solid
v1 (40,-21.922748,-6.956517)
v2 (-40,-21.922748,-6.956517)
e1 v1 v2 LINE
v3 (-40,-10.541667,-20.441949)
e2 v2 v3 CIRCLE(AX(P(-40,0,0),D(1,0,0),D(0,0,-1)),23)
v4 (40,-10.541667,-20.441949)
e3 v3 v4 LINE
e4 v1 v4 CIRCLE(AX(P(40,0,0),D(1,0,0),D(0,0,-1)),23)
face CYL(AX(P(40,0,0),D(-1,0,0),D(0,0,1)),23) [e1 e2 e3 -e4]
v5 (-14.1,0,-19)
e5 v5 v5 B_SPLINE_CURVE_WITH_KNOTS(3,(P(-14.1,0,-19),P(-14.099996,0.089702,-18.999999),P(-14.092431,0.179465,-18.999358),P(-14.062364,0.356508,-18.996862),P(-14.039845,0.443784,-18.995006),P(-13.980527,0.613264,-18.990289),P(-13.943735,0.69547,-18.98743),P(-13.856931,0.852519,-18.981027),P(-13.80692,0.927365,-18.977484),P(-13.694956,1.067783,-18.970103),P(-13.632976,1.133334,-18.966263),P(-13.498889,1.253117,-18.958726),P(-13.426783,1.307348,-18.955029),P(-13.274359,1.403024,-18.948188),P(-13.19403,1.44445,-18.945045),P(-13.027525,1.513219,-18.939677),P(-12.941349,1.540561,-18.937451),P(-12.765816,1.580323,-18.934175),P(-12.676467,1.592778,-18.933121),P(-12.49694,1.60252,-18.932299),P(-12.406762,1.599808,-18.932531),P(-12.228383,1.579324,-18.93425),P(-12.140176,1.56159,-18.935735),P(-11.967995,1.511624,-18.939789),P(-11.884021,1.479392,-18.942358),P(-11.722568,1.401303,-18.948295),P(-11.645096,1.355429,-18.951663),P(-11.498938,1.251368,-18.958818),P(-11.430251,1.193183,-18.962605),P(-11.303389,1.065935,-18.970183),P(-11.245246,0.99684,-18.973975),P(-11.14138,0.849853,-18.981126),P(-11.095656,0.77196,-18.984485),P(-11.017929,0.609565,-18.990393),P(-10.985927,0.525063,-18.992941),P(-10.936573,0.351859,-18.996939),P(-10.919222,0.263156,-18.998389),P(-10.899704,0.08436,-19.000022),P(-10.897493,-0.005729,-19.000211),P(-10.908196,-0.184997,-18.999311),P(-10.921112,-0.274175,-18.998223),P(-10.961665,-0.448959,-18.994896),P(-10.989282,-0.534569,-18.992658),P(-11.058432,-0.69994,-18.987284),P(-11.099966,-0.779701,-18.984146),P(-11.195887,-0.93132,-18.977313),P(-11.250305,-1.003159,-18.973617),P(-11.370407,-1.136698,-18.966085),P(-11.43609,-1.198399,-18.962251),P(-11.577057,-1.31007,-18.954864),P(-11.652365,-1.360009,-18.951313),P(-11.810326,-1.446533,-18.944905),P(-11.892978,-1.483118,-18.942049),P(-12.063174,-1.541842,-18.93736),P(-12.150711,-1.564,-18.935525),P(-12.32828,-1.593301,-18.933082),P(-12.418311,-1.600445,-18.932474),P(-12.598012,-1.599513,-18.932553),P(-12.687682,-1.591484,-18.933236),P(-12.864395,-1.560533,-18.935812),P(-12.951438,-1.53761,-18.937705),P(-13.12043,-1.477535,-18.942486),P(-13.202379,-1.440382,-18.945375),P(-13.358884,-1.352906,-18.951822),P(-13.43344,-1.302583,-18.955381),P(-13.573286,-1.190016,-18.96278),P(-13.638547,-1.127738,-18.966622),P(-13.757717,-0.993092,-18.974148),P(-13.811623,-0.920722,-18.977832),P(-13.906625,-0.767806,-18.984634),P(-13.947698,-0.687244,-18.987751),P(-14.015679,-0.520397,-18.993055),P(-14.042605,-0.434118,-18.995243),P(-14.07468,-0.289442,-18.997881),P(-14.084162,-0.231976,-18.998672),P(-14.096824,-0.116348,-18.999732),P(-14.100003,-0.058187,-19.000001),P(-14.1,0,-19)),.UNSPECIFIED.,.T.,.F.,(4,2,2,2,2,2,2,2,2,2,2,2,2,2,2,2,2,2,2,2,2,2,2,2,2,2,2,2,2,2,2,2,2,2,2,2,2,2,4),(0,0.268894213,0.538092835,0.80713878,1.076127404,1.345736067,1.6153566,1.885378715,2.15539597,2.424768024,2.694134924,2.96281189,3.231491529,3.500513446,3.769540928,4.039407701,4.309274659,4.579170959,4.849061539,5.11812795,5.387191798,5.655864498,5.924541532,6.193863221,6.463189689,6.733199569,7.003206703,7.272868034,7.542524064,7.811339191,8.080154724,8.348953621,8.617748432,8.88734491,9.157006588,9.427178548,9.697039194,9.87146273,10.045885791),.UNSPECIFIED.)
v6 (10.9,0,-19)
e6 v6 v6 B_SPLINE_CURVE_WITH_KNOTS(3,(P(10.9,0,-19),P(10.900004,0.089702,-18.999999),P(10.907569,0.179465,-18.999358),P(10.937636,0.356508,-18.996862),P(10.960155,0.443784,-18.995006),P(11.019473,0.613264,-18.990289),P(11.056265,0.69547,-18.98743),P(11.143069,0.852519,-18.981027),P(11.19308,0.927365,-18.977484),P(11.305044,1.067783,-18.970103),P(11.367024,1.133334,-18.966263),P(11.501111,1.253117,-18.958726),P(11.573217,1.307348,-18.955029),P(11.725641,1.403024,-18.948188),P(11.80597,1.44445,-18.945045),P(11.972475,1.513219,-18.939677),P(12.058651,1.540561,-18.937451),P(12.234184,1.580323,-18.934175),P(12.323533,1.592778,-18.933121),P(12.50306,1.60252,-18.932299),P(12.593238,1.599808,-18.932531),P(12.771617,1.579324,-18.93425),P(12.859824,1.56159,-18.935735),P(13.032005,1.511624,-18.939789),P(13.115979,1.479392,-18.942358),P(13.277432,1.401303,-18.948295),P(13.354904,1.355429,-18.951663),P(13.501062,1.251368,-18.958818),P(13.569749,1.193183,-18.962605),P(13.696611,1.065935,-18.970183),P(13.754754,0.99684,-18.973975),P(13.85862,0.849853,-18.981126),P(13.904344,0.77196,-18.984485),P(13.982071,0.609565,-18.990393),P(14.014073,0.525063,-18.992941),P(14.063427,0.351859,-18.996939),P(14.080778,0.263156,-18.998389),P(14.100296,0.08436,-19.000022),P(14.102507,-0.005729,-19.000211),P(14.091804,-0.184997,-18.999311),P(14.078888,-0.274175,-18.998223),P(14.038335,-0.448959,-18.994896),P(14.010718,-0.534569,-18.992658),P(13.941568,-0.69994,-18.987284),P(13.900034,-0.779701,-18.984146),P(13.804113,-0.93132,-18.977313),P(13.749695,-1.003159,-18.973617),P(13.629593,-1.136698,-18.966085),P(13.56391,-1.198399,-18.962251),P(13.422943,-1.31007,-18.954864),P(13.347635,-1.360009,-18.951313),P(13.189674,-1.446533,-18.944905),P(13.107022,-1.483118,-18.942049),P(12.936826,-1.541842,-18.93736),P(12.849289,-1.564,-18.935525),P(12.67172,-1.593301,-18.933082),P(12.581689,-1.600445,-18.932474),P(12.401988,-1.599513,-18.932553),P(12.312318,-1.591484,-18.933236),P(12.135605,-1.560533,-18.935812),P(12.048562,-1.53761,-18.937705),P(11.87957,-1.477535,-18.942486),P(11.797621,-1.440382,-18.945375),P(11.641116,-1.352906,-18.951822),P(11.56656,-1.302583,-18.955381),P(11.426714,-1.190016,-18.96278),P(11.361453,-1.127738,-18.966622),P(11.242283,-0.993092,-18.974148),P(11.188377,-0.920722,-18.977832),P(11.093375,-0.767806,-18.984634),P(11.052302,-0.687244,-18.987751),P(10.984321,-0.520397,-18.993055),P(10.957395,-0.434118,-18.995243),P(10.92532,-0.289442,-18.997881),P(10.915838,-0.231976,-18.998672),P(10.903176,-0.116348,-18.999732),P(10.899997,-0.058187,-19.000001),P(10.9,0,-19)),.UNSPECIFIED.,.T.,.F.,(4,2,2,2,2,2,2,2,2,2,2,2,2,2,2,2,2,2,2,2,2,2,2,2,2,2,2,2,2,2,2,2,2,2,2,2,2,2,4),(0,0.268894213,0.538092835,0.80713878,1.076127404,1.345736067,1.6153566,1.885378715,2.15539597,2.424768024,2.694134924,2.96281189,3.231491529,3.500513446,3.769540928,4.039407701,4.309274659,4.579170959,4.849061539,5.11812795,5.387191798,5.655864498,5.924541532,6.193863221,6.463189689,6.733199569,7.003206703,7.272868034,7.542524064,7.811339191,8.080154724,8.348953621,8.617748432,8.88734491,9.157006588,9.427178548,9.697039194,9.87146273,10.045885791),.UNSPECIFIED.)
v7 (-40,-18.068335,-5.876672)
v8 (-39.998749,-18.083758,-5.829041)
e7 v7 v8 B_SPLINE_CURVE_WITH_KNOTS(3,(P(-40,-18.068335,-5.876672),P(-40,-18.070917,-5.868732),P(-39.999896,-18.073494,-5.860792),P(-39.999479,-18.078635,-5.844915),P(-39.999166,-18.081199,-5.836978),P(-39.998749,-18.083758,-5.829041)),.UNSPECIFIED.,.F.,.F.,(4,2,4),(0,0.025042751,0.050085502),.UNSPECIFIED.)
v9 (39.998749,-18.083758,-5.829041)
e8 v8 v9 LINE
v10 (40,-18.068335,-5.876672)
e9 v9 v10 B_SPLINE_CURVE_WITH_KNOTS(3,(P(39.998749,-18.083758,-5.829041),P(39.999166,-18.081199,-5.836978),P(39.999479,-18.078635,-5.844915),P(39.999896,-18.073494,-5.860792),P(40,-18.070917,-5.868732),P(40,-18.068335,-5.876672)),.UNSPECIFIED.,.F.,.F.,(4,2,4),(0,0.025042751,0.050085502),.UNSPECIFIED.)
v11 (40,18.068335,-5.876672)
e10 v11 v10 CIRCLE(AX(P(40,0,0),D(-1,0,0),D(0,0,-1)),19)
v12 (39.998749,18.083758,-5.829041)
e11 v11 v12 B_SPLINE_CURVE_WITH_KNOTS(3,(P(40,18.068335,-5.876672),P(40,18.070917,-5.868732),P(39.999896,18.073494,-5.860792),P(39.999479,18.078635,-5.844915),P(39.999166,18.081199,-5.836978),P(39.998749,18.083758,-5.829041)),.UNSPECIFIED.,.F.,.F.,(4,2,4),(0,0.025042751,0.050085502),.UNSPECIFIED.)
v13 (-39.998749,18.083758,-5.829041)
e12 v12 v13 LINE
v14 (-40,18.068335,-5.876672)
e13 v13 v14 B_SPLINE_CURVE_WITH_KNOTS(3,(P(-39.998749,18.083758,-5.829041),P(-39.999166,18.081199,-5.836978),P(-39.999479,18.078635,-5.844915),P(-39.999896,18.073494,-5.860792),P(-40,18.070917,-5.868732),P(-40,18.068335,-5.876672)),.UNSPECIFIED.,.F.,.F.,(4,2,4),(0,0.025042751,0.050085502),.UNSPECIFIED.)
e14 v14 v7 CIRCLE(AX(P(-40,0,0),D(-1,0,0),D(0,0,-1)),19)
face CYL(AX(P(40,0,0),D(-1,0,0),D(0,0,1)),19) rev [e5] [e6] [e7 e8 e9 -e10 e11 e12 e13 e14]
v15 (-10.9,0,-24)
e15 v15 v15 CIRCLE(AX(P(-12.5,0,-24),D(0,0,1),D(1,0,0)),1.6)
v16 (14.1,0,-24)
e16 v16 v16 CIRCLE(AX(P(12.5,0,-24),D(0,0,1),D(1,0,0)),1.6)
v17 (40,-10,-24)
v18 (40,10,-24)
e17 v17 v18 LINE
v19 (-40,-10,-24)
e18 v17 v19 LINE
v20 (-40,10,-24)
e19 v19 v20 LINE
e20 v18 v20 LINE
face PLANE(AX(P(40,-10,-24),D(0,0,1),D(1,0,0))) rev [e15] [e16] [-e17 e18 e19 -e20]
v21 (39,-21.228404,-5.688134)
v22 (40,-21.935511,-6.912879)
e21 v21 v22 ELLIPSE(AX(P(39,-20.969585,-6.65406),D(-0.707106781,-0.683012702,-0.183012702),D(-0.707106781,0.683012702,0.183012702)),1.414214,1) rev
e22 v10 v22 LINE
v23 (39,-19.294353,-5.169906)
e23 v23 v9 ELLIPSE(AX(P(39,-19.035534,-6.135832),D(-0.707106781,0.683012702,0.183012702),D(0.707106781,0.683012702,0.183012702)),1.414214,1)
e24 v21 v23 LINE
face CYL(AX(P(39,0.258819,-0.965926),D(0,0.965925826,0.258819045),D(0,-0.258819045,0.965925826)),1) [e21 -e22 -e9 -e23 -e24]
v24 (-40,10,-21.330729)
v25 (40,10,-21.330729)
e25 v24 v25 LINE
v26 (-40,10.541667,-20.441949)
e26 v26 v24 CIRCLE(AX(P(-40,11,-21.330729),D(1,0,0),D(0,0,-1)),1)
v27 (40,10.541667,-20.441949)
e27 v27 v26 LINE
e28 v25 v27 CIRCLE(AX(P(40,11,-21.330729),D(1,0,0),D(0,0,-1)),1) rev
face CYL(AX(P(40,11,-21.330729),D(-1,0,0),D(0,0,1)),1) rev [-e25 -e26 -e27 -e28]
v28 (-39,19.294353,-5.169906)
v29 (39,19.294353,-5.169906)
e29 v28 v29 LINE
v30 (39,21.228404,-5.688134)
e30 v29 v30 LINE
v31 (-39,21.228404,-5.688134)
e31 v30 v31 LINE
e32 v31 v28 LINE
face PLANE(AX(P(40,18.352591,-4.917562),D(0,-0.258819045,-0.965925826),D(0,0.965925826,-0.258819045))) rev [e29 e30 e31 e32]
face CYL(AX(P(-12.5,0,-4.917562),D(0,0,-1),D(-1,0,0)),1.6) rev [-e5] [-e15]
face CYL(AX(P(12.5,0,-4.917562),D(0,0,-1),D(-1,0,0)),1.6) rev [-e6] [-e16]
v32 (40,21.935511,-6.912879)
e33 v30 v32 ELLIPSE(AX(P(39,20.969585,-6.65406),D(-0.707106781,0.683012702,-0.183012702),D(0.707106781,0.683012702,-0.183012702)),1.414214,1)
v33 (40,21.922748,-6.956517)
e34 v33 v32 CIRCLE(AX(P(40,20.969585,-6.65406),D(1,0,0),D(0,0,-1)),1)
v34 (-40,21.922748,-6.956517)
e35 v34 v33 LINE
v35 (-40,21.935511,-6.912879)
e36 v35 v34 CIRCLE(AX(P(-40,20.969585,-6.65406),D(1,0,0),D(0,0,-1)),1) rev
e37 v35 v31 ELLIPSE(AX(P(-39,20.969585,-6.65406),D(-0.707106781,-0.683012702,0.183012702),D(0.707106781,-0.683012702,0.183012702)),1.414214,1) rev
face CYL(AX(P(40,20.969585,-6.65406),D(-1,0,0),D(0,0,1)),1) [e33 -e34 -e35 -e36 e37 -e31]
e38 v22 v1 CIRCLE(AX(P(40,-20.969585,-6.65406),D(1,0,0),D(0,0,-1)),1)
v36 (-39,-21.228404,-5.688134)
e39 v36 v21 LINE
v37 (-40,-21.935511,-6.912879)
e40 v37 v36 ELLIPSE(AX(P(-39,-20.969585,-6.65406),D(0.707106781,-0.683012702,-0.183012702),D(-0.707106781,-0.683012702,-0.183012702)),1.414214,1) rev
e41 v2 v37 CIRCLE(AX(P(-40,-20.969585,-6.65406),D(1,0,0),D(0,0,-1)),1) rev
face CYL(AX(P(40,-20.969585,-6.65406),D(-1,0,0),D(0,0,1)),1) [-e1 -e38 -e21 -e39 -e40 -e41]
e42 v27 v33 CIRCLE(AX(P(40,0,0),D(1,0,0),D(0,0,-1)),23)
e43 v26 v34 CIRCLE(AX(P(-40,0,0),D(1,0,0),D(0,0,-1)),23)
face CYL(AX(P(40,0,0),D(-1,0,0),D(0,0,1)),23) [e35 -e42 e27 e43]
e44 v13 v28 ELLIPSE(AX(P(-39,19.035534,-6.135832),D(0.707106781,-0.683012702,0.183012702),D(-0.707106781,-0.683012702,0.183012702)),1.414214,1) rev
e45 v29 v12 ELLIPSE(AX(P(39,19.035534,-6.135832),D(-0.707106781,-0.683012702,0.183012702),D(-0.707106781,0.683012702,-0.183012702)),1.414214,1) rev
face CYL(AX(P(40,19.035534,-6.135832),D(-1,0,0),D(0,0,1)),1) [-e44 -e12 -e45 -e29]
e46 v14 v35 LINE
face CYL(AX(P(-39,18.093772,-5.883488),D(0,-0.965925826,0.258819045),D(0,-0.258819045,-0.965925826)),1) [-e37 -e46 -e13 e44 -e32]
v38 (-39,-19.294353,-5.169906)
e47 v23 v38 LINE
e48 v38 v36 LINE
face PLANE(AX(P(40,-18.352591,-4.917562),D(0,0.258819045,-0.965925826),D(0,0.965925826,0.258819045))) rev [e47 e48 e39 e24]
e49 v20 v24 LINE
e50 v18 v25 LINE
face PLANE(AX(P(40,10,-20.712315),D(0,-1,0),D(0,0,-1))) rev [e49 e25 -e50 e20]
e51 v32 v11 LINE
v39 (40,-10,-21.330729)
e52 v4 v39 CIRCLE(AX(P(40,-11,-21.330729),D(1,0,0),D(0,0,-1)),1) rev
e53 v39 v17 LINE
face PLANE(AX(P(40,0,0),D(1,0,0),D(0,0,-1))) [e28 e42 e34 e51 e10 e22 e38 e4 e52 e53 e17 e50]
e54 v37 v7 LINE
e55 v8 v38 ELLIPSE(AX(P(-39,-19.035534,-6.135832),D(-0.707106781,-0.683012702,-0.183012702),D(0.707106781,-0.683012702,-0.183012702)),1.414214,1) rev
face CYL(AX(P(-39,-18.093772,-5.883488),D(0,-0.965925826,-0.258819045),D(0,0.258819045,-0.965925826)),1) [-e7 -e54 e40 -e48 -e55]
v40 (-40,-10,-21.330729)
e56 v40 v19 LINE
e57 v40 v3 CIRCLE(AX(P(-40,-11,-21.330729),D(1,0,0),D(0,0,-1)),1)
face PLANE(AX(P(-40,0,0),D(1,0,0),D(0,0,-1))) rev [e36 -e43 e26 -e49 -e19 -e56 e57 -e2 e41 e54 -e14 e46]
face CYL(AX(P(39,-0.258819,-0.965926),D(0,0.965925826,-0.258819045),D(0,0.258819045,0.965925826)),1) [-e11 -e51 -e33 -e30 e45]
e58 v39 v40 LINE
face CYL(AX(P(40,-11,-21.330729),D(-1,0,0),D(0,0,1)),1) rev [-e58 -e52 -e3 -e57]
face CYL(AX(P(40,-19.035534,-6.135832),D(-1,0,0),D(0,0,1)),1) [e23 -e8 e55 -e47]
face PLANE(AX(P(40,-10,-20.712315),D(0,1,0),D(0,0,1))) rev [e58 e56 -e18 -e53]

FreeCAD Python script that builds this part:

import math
import FreeCAD as App
import Part
import Sketcher

V = App.Vector
Q = App.Units.Quantity


def edges_at(feature, points):
    """Names of the edges that pass closest to the given points."""
    edges = feature.Shape.Edges
    near = lambda p: min(range(len(edges)), key=lambda i: edges[i].distToShape(Part.Vertex(*p))[0])
    return sorted({f"Edge{near(p) + 1}" for p in points})

doc = App.newDocument("Part")
body = doc.addObject("PartDesign::Body", "Body")

sketch1 = body.newObject("Sketcher::SketchObject", "Sketch")
sketch1.AttachmentSupport = (doc.getObject("YZ_Plane"), [""])
sketch1.MapMode = "FlatFace"
sketch1.addGeometry([
    Part.LineSegment(V(22.2, -6, 0), V(18.4, -4.9, 0)),
    Part.ArcOfCircle(Part.Circle(V(0, 0, 0), V(0, 0, 1), 19), math.radians(-165), math.radians(-15)),
    Part.LineSegment(V(-18.4, -4.9, 0), V(-22.2, -6, 0)),
    Part.ArcOfCircle(Part.Circle(V(0, 0, 0), V(0, 0, 1), 23), math.radians(-165), math.radians(-116)),
    Part.LineSegment(V(-10, -20.7, 0), V(-10, -24, 0)),
    Part.LineSegment(V(-10, -24, 0), V(10, -24, 0)),
    Part.LineSegment(V(10, -24, 0), V(10, -20.7, 0)),
    Part.ArcOfCircle(Part.Circle(V(0, 0, 0), V(0, 0, 1), 23), math.radians(-64), math.radians(-15)),
], False)
sketch1.addConstraint([
    Sketcher.Constraint("Coincident", 0, 2, 1, 2),
    Sketcher.Constraint("Coincident", 1, 1, 2, 1),
    Sketcher.Constraint("Coincident", 2, 2, 3, 1),
    Sketcher.Constraint("Coincident", 3, 2, 4, 1),
    Sketcher.Constraint("Coincident", 4, 2, 5, 1),
    Sketcher.Constraint("Coincident", 5, 2, 6, 1),
    Sketcher.Constraint("Coincident", 6, 2, 7, 1),
    Sketcher.Constraint("Coincident", 7, 2, 0, 1),
    Sketcher.Constraint("Vertical", 4),
    Sketcher.Constraint("Horizontal", 5),
    Sketcher.Constraint("Vertical", 6),
    Sketcher.Constraint("Coincident", 1, 3, -1, 1),
    Sketcher.Constraint("Coincident", 3, 3, -1, 1),
    Sketcher.Constraint("Coincident", 7, 3, -1, 1),
    Sketcher.Constraint("Equal", 3, 7),
    Sketcher.Constraint("Horizontal", 0, 2, 1, 1),
    Sketcher.Constraint("Horizontal", 3, 2, 6, 2),
    Sketcher.Constraint("Horizontal", 2, 2, 7, 2),
    Sketcher.Constraint("Radius", 1, Q("19 mm")),
    Sketcher.Constraint("Radius", 3, Q("23 mm")),
    Sketcher.Constraint("DistanceX", 5, 1, 5, 2, Q("20 mm")),
    Sketcher.Constraint("Angle", 0, Q("165 deg")),
    Sketcher.Constraint("DistanceY", 4, 2, -1, 1, Q("24 mm")),
    Sketcher.Constraint("DistanceX", -1, 1, 0, 2, Q("18.352591 mm")),
])
pad1 = body.newObject("PartDesign::Pad", "Pad")
pad1.Profile = sketch1
pad1.Length = 80
pad1.Midplane = True

sketch2 = body.newObject("Sketcher::SketchObject", "Sketch001")
sketch2.AttachmentSupport = (doc.getObject("XY_Plane"), [""])
sketch2.MapMode = "FlatFace"
sketch2.AttachmentOffset = App.Placement(V(0, 0, -24), App.Rotation())
sketch2.addGeometry([
    Part.Circle(V(-12.5, 0, 0), V(0, 0, 1), 1.6),
    Part.Circle(V(12.5, 0, 0), V(0, 0, 1), 1.6),
], False)
sketch2.addConstraint([
    Sketcher.Constraint("Equal", 0, 1),
    Sketcher.Constraint("Symmetric", 0, 3, 1, 3, -1, 1),
    Sketcher.Constraint("PointOnObject", 0, 3, -1),
    Sketcher.Constraint("Diameter", 0, Q("3.2 mm")),
    Sketcher.Constraint("DistanceX", 0, 3, 1, 3, Q("25 mm")),
])
pocket1 = body.newObject("PartDesign::Pocket", "Pocket")
pocket1.Profile = sketch2
pocket1.Type = "ThroughAll"
pocket1.Midplane = True
doc.recompute()

fillet = body.newObject("PartDesign::Fillet", "Fillet")
fillet.Base = (pocket1, edges_at(pocket1, [
    (-40, -20.284, -5.435),
    (0, 18.353, -4.918),
    (0, 22.216, -5.953),
    (0, 10, -20.712),
    (0, -10, -20.712),
    (0, -22.216, -5.953),
    (0, -18.353, -4.918),
    (40, 20.284, -5.435),
    (-40, 20.284, -5.435),
    (40, -20.284, -5.435),
]))
fillet.Radius = 1

doc.recompute()
